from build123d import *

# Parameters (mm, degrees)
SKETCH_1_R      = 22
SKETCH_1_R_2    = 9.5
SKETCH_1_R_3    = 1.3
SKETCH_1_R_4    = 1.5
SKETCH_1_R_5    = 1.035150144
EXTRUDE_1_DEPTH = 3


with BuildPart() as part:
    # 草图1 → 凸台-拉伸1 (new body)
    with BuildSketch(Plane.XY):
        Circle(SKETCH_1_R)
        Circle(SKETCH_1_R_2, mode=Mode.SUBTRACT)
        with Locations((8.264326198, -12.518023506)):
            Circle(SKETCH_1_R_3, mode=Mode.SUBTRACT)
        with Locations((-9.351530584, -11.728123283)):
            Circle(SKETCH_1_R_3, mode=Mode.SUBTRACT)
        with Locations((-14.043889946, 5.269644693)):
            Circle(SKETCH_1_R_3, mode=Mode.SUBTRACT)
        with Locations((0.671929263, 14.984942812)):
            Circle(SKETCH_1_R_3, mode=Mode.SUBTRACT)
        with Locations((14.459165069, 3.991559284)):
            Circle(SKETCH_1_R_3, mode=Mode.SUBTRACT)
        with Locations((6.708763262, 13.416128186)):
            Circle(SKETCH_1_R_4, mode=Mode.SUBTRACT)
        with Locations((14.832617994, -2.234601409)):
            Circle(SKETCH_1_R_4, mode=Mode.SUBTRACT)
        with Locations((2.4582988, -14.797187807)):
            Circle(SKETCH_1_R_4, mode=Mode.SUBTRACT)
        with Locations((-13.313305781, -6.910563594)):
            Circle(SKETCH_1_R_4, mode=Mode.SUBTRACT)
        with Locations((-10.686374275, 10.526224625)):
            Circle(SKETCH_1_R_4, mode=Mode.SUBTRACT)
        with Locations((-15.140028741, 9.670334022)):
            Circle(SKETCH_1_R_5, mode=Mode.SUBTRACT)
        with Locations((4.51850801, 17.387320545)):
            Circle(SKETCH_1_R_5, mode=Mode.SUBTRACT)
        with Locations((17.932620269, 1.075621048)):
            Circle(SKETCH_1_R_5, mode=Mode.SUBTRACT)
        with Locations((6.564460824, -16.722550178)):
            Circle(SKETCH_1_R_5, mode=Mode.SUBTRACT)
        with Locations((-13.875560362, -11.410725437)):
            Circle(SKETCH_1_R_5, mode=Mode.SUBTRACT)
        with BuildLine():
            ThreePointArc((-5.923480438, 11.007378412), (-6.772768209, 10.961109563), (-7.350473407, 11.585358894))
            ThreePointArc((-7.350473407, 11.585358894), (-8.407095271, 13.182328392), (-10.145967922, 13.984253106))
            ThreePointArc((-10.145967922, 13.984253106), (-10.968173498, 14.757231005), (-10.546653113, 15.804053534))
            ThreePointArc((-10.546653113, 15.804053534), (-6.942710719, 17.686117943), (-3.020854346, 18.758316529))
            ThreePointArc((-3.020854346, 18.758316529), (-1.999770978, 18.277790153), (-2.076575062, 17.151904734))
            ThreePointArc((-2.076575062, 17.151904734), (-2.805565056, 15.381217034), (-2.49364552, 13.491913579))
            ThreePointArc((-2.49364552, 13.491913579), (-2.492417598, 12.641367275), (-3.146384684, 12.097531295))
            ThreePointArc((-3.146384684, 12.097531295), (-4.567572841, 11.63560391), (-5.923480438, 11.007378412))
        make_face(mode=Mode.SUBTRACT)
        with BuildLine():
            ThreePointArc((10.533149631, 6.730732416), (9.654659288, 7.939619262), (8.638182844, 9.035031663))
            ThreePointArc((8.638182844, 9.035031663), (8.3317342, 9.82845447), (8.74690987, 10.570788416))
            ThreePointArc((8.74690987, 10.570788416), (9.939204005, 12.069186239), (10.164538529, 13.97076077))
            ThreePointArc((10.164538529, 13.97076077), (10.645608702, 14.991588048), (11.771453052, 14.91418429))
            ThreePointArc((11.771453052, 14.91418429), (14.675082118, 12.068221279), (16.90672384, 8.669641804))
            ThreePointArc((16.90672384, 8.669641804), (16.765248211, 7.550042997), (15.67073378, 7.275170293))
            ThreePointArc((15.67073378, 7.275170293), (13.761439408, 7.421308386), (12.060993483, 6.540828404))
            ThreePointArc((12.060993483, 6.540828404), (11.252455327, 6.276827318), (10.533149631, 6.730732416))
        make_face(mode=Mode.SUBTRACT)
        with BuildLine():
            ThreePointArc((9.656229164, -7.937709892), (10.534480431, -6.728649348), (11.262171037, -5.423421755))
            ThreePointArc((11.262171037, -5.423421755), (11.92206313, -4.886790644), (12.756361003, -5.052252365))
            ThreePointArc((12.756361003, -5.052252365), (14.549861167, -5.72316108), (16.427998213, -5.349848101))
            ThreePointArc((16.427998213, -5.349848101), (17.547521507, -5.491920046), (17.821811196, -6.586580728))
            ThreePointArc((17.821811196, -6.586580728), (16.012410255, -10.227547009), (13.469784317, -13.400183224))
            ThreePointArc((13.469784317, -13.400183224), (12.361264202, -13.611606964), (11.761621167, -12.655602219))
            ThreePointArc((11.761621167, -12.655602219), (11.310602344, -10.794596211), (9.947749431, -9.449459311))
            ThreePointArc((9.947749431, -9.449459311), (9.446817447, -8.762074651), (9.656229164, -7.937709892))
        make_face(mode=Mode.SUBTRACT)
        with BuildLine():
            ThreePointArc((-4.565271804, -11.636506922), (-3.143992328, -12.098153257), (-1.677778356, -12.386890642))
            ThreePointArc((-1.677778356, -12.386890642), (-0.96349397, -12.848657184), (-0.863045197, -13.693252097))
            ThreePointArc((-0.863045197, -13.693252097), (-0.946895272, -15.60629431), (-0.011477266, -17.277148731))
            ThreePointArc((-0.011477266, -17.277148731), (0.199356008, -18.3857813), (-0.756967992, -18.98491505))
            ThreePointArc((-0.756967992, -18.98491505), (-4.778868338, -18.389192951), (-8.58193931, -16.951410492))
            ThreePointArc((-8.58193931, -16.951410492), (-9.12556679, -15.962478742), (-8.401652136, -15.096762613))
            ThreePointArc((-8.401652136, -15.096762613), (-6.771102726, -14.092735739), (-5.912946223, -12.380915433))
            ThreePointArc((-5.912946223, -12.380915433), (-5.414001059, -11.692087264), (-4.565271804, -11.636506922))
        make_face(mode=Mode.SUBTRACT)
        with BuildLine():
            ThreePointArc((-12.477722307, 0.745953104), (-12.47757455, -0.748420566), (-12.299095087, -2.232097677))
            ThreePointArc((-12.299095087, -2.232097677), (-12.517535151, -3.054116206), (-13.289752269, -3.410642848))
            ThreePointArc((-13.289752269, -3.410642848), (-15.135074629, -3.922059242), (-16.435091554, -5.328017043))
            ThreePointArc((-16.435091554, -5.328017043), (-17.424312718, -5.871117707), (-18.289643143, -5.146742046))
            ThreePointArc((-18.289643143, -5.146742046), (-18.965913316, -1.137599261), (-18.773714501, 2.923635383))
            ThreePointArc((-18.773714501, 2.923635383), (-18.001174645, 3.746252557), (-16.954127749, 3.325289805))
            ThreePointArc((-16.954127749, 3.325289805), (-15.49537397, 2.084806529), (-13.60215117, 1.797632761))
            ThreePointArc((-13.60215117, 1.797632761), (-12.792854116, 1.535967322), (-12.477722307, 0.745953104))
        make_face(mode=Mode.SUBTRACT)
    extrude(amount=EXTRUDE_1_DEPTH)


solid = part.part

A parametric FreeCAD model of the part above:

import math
import FreeCAD as App
import Part
import Sketcher

V = App.Vector

doc = App.newDocument("Part")
body = doc.addObject("PartDesign::Body", "Body")

# Sketch on XY plane
sketch1 = body.newObject("Sketcher::SketchObject", "Sketch")
sketch1.AttachmentSupport = (doc.getObject("XY_Plane"), [""])
sketch1.MapMode = "FlatFace"
sketch1.addGeometry([
    Part.Circle(V(0, 0, 0), V(0, 0, 1), 22),  # 0
    Part.Circle(V(-13.9, -11.4, 0), V(0, 0, 1), 1),  # 1
    Part.ArcOfCircle(Part.Circle(V(-4.9, -12.6, 0), V(0, 0, 1), 1), math.radians(69), math.radians(169)),  # 2
    Part.ArcOfCircle(Part.Circle(V(0, 0, 0), V(0, 0, 1), 12.5), math.radians(-111.42), math.radians(-97.71)),  # 3
    Part.ArcOfCircle(Part.Circle(V(-1.8, -13.4, 0), V(0, 0, 1), 1), math.radians(-18), math.radians(82)),  # 4
    Part.ArcOfCircle(Part.Circle(V(2.5, -14.8, 0), V(0, 0, 1), 3.5), math.radians(162), math.radians(225)),  # 5
    Part.ArcOfCircle(Part.Circle(V(-0.7, -18, 0), V(0, 0, 1), 1), math.radians(-92), math.radians(45)),  # 6
    Part.ArcOfCircle(Part.Circle(V(0, 0, 0), V(0, 0, 1), 19), math.radians(-117), math.radians(-92)),  # 7
    Part.ArcOfCircle(Part.Circle(V(-8.1, -16.1, 0), V(0, 0, 1), 1), math.radians(106), math.radians(243)),  # 8
    Part.ArcOfCircle(Part.Circle(V(-9.4, -11.7, 0), V(0, 0, 1), 3.5), math.radians(-74), math.radians(-11)),  # 9
    Part.Circle(V(-9.4, -11.7, 0), V(0, 0, 1), 1.3),  # 10
    Part.Circle(V(-13.3, -6.9, 0), V(0, 0, 1), 1.5),  # 11
    Part.ArcOfCircle(Part.Circle(V(-13.5, 0.8, 0), V(0, 0, 1), 1), math.radians(-3), math.radians(97)),  # 12
    Part.ArcOfCircle(Part.Circle(V(0, 0, 0), V(0, 0, 1), 12.5), math.radians(176.58), math.radians(190.29)),  # 13
    Part.ArcOfCircle(Part.Circle(V(-13.3, -2.4, 0), V(0, 0, 1), 1), math.radians(-90), math.radians(10)),  # 14
    Part.ArcOfCircle(Part.Circle(V(-13.3, -6.9, 0), V(0, 0, 1), 3.5), math.radians(90), math.radians(153)),  # 15
    Part.ArcOfCircle(Part.Circle(V(-17.3, -4.9, 0), V(0, 0, 1), 1), math.radians(-164), math.radians(-27)),  # 16
    Part.ArcOfCircle(Part.Circle(V(0, 0, 0), V(0, 0, 1), 19), math.radians(171), math.radians(196)),  # 17
    Part.ArcOfCircle(Part.Circle(V(-17.8, 2.8, 0), V(0, 0, 1), 1), math.radians(34), math.radians(171)),  # 18
    Part.ArcOfCircle(Part.Circle(V(-14, 5.3, 0), V(0, 0, 1), 3.5), math.radians(-146), math.radians(-83)),  # 19
    Part.Circle(V(2.5, -14.8, 0), V(0, 0, 1), 1.5),  # 20
    Part.Circle(V(6.6, -16.7, 0), V(0, 0, 1), 1),  # 21
    Part.Circle(V(8.3, -12.5, 0), V(0, 0, 1), 1.3),  # 22
    Part.ArcOfCircle(Part.Circle(V(10.4, -8.6, 0), V(0, 0, 1), 1), math.radians(141), math.radians(241)),  # 23
    Part.ArcOfCircle(Part.Circle(V(0, 0, 0), V(0, 0, 1), 12.5), math.radians(-39.42), math.radians(-25.71)),  # 24
    Part.ArcOfCircle(Part.Circle(V(12.2, -5.9, 0), V(0, 0, 1), 1), math.radians(54), math.radians(154)),  # 25
    Part.ArcOfCircle(Part.Circle(V(14.8, -2.2, 0), V(0, 0, 1), 3.5), math.radians(-126), math.radians(-63)),  # 26
    Part.ArcOfCircle(Part.Circle(V(16.9, -6.2, 0), V(0, 0, 1), 1), math.radians(-20), math.radians(117)),  # 27
    Part.ArcOfCircle(Part.Circle(V(0, 0, 0), V(0, 0, 1), 19), math.radians(-45), math.radians(-20)),  # 28
    Part.ArcOfCircle(Part.Circle(V(12.8, -12.7, 0), V(0, 0, 1), 1), math.radians(178), math.radians(315)),  # 29
    Part.ArcOfCircle(Part.Circle(V(8.3, -12.5, 0), V(0, 0, 1), 3.5), math.radians(-2), math.radians(61)),  # 30
    Part.Circle(V(14.8, -2.2, 0), V(0, 0, 1), 1.5),  # 31
    Part.Circle(V(-14, 5.3, 0), V(0, 0, 1), 1.3),  # 32
    Part.Circle(V(-15.1, 9.7, 0), V(0, 0, 1), 1),  # 33
    Part.Circle(V(-10.7, 10.5, 0), V(0, 0, 1), 1.5),  # 34
    Part.ArcOfCircle(Part.Circle(V(0, 0, 0), V(0, 0, 1), 12.5), math.radians(104.58), math.radians(118.29)),  # 35
    Part.ArcOfCircle(Part.Circle(V(-6.4, 11.9, 0), V(0, 0, 1), 1), math.radians(-162), math.radians(-62)),  # 36
    Part.ArcOfCircle(Part.Circle(V(-10.7, 10.5, 0), V(0, 0, 1), 3.5), math.radians(18), math.radians(81)),  # 37
    Part.ArcOfCircle(Part.Circle(V(-10, 15, 0), V(0, 0, 1), 1), math.radians(124), math.radians(261)),  # 38
    Part.ArcOfCircle(Part.Circle(V(0, 0, 0), V(0, 0, 1), 19), math.radians(99), math.radians(124)),  # 39
    Part.ArcOfCircle(Part.Circle(V(-2.9, 17.8, 0), V(0, 0, 1), 1), math.radians(-38), math.radians(99)),  # 40
    Part.ArcOfCircle(Part.Circle(V(0.7, 15, 0), V(0, 0, 1), 3.5), math.radians(142), math.radians(205)),  # 41
    Part.ArcOfCircle(Part.Circle(V(-3.4, 13.1, 0), V(0, 0, 1), 1), math.radians(-75), math.radians(25)),  # 42
    Part.Circle(V(0, 0, 0), V(0, 0, 1), 9.5),  # 43
    Part.Circle(V(17.9, 1.1, 0), V(0, 0, 1), 1),  # 44
    Part.Circle(V(14.5, 4, 0), V(0, 0, 1), 1.3),  # 45
    Part.Circle(V(6.7, 13.4, 0), V(0, 0, 1), 1.5),  # 46
    Part.Circle(V(0.7, 15, 0), V(0, 0, 1), 1.3),  # 47
    Part.Circle(V(4.5, 17.4, 0), V(0, 0, 1), 1),  # 48
    Part.ArcOfCircle(Part.Circle(V(11.4, 7.3, 0), V(0, 0, 1), 1), math.radians(-147), math.radians(-47)),  # 49
    Part.ArcOfCircle(Part.Circle(V(0, 0, 0), V(0, 0, 1), 12.5), math.radians(32.58), math.radians(46.29)),  # 50
    Part.ArcOfCircle(Part.Circle(V(9.3, 9.8, 0), V(0, 0, 1), 1), math.radians(126), math.radians(226)),  # 51
    Part.ArcOfCircle(Part.Circle(V(6.7, 13.4, 0), V(0, 0, 1), 3.5), math.radians(-54), math.radians(9)),  # 52
    Part.ArcOfCircle(Part.Circle(V(11.2, 14.1, 0), V(0, 0, 1), 1), math.radians(52), math.radians(189)),  # 53
    Part.ArcOfCircle(Part.Circle(V(0, 0, 0), V(0, 0, 1), 19), math.radians(27), math.radians(52)),  # 54
    Part.ArcOfCircle(Part.Circle(V(16, 8.2, 0), V(0, 0, 1), 1), math.radians(-110), math.radians(27)),  # 55
    Part.ArcOfCircle(Part.Circle(V(14.5, 4, 0), V(0, 0, 1), 3.5), math.radians(70), math.radians(133)),  # 56
], False)
sketch1.addConstraint([
    Sketcher.Constraint("Tangent", 2, 1, 3, 1),
    Sketcher.Constraint("Tangent", 3, 2, 4, 2),
    Sketcher.Constraint("Tangent", 4, 1, 5, 1),
    Sketcher.Constraint("Tangent", 5, 2, 6, 2),
    Sketcher.Constraint("Tangent", 6, 1, 7, 2),
    Sketcher.Constraint("Tangent", 7, 1, 8, 2),
    Sketcher.Constraint("Tangent", 8, 1, 9, 1),
    Sketcher.Constraint("Tangent", 9, 2, 2, 2),
    Sketcher.Constraint("Tangent", 12, 1, 13, 1),
    Sketcher.Constraint("Tangent", 13, 2, 14, 2),
    Sketcher.Constraint("Tangent", 14, 1, 15, 1),
    Sketcher.Constraint("Tangent", 15, 2, 16, 2),
    Sketcher.Constraint("Tangent", 16, 1, 17, 2),
    Sketcher.Constraint("Tangent", 17, 1, 18, 2),
    Sketcher.Constraint("Tangent", 18, 1, 19, 1),
    Sketcher.Constraint("Tangent", 19, 2, 12, 2),
    Sketcher.Constraint("Tangent", 23, 1, 24, 1),
    Sketcher.Constraint("Tangent", 24, 2, 25, 2),
    Sketcher.Constraint("Tangent", 25, 1, 26, 1),
    Sketcher.Constraint("Tangent", 26, 2, 27, 2),
    Sketcher.Constraint("Tangent", 27, 1, 28, 2),
    Sketcher.Constraint("Tangent", 28, 1, 29, 2),
    Sketcher.Constraint("Tangent", 29, 1, 30, 1),
    Sketcher.Constraint("Tangent", 30, 2, 23, 2),
    Sketcher.Constraint("Tangent", 35, 2, 36, 2),
    Sketcher.Constraint("Tangent", 36, 1, 37, 1),
    Sketcher.Constraint("Tangent", 37, 2, 38, 2),
    Sketcher.Constraint("Tangent", 38, 1, 39, 2),
    Sketcher.Constraint("Tangent", 39, 1, 40, 2),
    Sketcher.Constraint("Tangent", 40, 1, 41, 1),
    Sketcher.Constraint("Tangent", 41, 2, 42, 2),
    Sketcher.Constraint("Tangent", 42, 1, 35, 1),
    Sketcher.Constraint("Tangent", 49, 1, 50, 1),
    Sketcher.Constraint("Tangent", 50, 2, 51, 2),
    Sketcher.Constraint("Tangent", 51, 1, 52, 1),
    Sketcher.Constraint("Tangent", 52, 2, 53, 2),
    Sketcher.Constraint("Tangent", 53, 1, 54, 2),
    Sketcher.Constraint("Tangent", 54, 1, 55, 2),
    Sketcher.Constraint("Tangent", 55, 1, 56, 1),
    Sketcher.Constraint("Tangent", 56, 2, 49, 2),
    Sketcher.Constraint("Coincident", 0, 3, -1, 1),
    Sketcher.Constraint("Coincident", 3, 3, -1, 1),
    Sketcher.Constraint("Coincident", 7, 3, -1, 1),
    Sketcher.Constraint("Coincident", 13, 3, -1, 1),
    Sketcher.Constraint("Coincident", 17, 3, -1, 1),
    Sketcher.Constraint("Coincident", 24, 3, -1, 1),
    Sketcher.Constraint("Coincident", 28, 3, -1, 1),
    Sketcher.Constraint("Coincident", 35, 3, -1, 1),
    Sketcher.Constraint("Coincident", 39, 3, -1, 1),
    Sketcher.Constraint("Coincident", 43, 3, -1, 1),
    Sketcher.Constraint("Coincident", 50, 3, -1, 1),
    Sketcher.Constraint("Coincident", 54, 3, -1, 1),
    Sketcher.Constraint("Coincident", 10, 3, 9, 3),
    Sketcher.Constraint("Coincident", 15, 3, 11, 3),
    Sketcher.Constraint("Coincident", 20, 3, 5, 3),
    Sketcher.Constraint("Coincident", 30, 3, 22, 3),
    Sketcher.Constraint("Coincident", 31, 3, 26, 3),
    Sketcher.Constraint("Coincident", 32, 3, 19, 3),
    Sketcher.Constraint("Coincident", 37, 3, 34, 3),
    Sketcher.Constraint("Coincident", 47, 3, 41, 3),
    Sketcher.Constraint("Coincident", 52, 3, 46, 3),
    Sketcher.Constraint("Coincident", 56, 3, 45, 3),
    Sketcher.Constraint("Equal", 2, 4),
    Sketcher.Constraint("Equal", 4, 6),
    Sketcher.Constraint("Equal", 6, 8),
    Sketcher.Constraint("Equal", 5, 9),
    Sketcher.Constraint("Equal", 8, 12),
    Sketcher.Constraint("Equal", 3, 13),
    Sketcher.Constraint("Equal", 12, 14),
    Sketcher.Constraint("Equal", 9, 15),
    Sketcher.Constraint("Equal", 14, 16),
    Sketcher.Constraint("Equal", 7, 17),
    Sketcher.Constraint("Equal", 16, 18),
    Sketcher.Constraint("Equal", 15, 19),
    Sketcher.Constraint("Equal", 11, 20),
    Sketcher.Constraint("Equal", 1, 21),
    Sketcher.Constraint("Equal", 10, 22),
    Sketcher.Constraint("Equal", 18, 23),
    Sketcher.Constraint("Equal", 13, 24),
    Sketcher.Constraint("Equal", 23, 25),
    Sketcher.Constraint("Equal", 19, 26),
    Sketcher.Constraint("Equal", 25, 27),
    Sketcher.Constraint("Equal", 17, 28),
    Sketcher.Constraint("Equal", 27, 29),
    Sketcher.Constraint("Equal", 26, 30),
    Sketcher.Constraint("Equal", 20, 31),
    Sketcher.Constraint("Equal", 22, 32),
    Sketcher.Constraint("Equal", 21, 33),
    Sketcher.Constraint("Equal", 31, 34),
    Sketcher.Constraint("Equal", 24, 35),
    Sketcher.Constraint("Equal", 29, 36),
    Sketcher.Constraint("Equal", 30, 37),
    Sketcher.Constraint("Equal", 36, 38),
    Sketcher.Constraint("Equal", 28, 39),
    Sketcher.Constraint("Equal", 38, 40),
    Sketcher.Constraint("Equal", 37, 41),
    Sketcher.Constraint("Equal", 40, 42),
    Sketcher.Constraint("Equal", 33, 44),
    Sketcher.Constraint("Equal", 32, 45),
    Sketcher.Constraint("Equal", 34, 46),
    Sketcher.Constraint("Equal", 45, 47),
    Sketcher.Constraint("Equal", 44, 48),
    Sketcher.Constraint("Equal", 42, 49),
    Sketcher.Constraint("Equal", 35, 50),
    Sketcher.Constraint("Equal", 49, 51),
    Sketcher.Constraint("Equal", 41, 52),
    Sketcher.Constraint("Equal", 51, 53),
    Sketcher.Constraint("Equal", 39, 54),
    Sketcher.Constraint("Equal", 53, 55),
    Sketcher.Constraint("Equal", 52, 56),
    Sketcher.Constraint("Diameter", 0, 44.0),
    Sketcher.Constraint("Diameter", 11, 3.0),
    Sketcher.Constraint("Diameter", 43, 19.0),
    Sketcher.Constraint("Radius", 2, 1.0),
    Sketcher.Constraint("Radius", 7, 19.0),
    Sketcher.Constraint("Diameter", 10, 2.6),
    Sketcher.Constraint("Radius", 3, 12.5),
    Sketcher.Constraint("Radius", 5, 3.5),
    Sketcher.Constraint("Diameter", 1, 2.0703),
    Sketcher.Constraint("DistanceX", 4, 3, -1, 1, 1.812001),
    Sketcher.Constraint("DistanceX", -1, 1, 26, 2, 16.427998),
    Sketcher.Constraint("DistanceX", -1, 1, 5, 3, 2.458299),
    Sketcher.Constraint("DistanceY", 26, 3, -1, 1, 2.234601),
    Sketcher.Constraint("DistanceX", -1, 1, 49, 3, 11.375802),
    Sketcher.Constraint("DistanceX", 1, 3, -1, 1, 13.87556),
    Sketcher.Constraint("DistanceX", 8, 3, -1, 1, 8.130258),
    Sketcher.Constraint("DistanceX", 9, 3, -1, 1, 9.351531),
    Sketcher.Constraint("DistanceX", 12, 3, -1, 1, 13.47594),
    Sketcher.Constraint("DistanceX", 16, 3, -1, 1, 17.32703),
    Sketcher.Constraint("DistanceY", -1, 1, 18, 3, 2.76976),
    Sketcher.Constraint("DistanceX", -1, 1, 21, 3, 6.564461),
    Sketcher.Constraint("DistanceY", 21, 3, -1, 1, 16.72255),
    Sketcher.Constraint("DistanceX", -1, 1, 29, 3, 12.760848),
    Sketcher.Constraint("DistanceX", 33, 3, -1, 1, 15.140029),
    Sketcher.Constraint("DistanceX", 36, 3, -1, 1, 6.397359),
    Sketcher.Constraint("DistanceY", -1, 1, 38, 3, 14.972261),
    Sketcher.Constraint("DistanceX", -1, 1, 41, 3, 0.671929),
    Sketcher.Constraint("DistanceX", -1, 1, 44, 3, 17.93262),
    Sketcher.Constraint("DistanceY", -1, 1, 44, 3, 1.075621),
    Sketcher.Constraint("DistanceY", -1, 1, 45, 3, 3.991559),
    Sketcher.Constraint("DistanceY", -1, 1, 46, 3, 13.416128),
    Sketcher.Constraint("DistanceX", -1, 1, 48, 3, 4.518508),
    Sketcher.Constraint("DistanceY", -1, 1, 48, 3, 17.387321),
    Sketcher.Constraint("DistanceX", 15, 2, -1, 1, 16.435092),
    Sketcher.Constraint("DistanceX", -1, 1, 23, 1, 9.656229),
    Sketcher.Constraint("DistanceY", -1, 1, 42, 1, 12.097531),
    Sketcher.Constraint("DistanceY", -1, 1, 50, 2, 9.035032),
    Sketcher.Constraint("DistanceY", 1, 3, -1, 1, 11.410725),
    Sketcher.Constraint("DistanceY", -1, 1, 33, 3, 9.670334),
])
pad1 = body.newObject("PartDesign::Pad", "Pad")
pad1.Profile = sketch1
pad1.Length = 3

doc.recompute()
